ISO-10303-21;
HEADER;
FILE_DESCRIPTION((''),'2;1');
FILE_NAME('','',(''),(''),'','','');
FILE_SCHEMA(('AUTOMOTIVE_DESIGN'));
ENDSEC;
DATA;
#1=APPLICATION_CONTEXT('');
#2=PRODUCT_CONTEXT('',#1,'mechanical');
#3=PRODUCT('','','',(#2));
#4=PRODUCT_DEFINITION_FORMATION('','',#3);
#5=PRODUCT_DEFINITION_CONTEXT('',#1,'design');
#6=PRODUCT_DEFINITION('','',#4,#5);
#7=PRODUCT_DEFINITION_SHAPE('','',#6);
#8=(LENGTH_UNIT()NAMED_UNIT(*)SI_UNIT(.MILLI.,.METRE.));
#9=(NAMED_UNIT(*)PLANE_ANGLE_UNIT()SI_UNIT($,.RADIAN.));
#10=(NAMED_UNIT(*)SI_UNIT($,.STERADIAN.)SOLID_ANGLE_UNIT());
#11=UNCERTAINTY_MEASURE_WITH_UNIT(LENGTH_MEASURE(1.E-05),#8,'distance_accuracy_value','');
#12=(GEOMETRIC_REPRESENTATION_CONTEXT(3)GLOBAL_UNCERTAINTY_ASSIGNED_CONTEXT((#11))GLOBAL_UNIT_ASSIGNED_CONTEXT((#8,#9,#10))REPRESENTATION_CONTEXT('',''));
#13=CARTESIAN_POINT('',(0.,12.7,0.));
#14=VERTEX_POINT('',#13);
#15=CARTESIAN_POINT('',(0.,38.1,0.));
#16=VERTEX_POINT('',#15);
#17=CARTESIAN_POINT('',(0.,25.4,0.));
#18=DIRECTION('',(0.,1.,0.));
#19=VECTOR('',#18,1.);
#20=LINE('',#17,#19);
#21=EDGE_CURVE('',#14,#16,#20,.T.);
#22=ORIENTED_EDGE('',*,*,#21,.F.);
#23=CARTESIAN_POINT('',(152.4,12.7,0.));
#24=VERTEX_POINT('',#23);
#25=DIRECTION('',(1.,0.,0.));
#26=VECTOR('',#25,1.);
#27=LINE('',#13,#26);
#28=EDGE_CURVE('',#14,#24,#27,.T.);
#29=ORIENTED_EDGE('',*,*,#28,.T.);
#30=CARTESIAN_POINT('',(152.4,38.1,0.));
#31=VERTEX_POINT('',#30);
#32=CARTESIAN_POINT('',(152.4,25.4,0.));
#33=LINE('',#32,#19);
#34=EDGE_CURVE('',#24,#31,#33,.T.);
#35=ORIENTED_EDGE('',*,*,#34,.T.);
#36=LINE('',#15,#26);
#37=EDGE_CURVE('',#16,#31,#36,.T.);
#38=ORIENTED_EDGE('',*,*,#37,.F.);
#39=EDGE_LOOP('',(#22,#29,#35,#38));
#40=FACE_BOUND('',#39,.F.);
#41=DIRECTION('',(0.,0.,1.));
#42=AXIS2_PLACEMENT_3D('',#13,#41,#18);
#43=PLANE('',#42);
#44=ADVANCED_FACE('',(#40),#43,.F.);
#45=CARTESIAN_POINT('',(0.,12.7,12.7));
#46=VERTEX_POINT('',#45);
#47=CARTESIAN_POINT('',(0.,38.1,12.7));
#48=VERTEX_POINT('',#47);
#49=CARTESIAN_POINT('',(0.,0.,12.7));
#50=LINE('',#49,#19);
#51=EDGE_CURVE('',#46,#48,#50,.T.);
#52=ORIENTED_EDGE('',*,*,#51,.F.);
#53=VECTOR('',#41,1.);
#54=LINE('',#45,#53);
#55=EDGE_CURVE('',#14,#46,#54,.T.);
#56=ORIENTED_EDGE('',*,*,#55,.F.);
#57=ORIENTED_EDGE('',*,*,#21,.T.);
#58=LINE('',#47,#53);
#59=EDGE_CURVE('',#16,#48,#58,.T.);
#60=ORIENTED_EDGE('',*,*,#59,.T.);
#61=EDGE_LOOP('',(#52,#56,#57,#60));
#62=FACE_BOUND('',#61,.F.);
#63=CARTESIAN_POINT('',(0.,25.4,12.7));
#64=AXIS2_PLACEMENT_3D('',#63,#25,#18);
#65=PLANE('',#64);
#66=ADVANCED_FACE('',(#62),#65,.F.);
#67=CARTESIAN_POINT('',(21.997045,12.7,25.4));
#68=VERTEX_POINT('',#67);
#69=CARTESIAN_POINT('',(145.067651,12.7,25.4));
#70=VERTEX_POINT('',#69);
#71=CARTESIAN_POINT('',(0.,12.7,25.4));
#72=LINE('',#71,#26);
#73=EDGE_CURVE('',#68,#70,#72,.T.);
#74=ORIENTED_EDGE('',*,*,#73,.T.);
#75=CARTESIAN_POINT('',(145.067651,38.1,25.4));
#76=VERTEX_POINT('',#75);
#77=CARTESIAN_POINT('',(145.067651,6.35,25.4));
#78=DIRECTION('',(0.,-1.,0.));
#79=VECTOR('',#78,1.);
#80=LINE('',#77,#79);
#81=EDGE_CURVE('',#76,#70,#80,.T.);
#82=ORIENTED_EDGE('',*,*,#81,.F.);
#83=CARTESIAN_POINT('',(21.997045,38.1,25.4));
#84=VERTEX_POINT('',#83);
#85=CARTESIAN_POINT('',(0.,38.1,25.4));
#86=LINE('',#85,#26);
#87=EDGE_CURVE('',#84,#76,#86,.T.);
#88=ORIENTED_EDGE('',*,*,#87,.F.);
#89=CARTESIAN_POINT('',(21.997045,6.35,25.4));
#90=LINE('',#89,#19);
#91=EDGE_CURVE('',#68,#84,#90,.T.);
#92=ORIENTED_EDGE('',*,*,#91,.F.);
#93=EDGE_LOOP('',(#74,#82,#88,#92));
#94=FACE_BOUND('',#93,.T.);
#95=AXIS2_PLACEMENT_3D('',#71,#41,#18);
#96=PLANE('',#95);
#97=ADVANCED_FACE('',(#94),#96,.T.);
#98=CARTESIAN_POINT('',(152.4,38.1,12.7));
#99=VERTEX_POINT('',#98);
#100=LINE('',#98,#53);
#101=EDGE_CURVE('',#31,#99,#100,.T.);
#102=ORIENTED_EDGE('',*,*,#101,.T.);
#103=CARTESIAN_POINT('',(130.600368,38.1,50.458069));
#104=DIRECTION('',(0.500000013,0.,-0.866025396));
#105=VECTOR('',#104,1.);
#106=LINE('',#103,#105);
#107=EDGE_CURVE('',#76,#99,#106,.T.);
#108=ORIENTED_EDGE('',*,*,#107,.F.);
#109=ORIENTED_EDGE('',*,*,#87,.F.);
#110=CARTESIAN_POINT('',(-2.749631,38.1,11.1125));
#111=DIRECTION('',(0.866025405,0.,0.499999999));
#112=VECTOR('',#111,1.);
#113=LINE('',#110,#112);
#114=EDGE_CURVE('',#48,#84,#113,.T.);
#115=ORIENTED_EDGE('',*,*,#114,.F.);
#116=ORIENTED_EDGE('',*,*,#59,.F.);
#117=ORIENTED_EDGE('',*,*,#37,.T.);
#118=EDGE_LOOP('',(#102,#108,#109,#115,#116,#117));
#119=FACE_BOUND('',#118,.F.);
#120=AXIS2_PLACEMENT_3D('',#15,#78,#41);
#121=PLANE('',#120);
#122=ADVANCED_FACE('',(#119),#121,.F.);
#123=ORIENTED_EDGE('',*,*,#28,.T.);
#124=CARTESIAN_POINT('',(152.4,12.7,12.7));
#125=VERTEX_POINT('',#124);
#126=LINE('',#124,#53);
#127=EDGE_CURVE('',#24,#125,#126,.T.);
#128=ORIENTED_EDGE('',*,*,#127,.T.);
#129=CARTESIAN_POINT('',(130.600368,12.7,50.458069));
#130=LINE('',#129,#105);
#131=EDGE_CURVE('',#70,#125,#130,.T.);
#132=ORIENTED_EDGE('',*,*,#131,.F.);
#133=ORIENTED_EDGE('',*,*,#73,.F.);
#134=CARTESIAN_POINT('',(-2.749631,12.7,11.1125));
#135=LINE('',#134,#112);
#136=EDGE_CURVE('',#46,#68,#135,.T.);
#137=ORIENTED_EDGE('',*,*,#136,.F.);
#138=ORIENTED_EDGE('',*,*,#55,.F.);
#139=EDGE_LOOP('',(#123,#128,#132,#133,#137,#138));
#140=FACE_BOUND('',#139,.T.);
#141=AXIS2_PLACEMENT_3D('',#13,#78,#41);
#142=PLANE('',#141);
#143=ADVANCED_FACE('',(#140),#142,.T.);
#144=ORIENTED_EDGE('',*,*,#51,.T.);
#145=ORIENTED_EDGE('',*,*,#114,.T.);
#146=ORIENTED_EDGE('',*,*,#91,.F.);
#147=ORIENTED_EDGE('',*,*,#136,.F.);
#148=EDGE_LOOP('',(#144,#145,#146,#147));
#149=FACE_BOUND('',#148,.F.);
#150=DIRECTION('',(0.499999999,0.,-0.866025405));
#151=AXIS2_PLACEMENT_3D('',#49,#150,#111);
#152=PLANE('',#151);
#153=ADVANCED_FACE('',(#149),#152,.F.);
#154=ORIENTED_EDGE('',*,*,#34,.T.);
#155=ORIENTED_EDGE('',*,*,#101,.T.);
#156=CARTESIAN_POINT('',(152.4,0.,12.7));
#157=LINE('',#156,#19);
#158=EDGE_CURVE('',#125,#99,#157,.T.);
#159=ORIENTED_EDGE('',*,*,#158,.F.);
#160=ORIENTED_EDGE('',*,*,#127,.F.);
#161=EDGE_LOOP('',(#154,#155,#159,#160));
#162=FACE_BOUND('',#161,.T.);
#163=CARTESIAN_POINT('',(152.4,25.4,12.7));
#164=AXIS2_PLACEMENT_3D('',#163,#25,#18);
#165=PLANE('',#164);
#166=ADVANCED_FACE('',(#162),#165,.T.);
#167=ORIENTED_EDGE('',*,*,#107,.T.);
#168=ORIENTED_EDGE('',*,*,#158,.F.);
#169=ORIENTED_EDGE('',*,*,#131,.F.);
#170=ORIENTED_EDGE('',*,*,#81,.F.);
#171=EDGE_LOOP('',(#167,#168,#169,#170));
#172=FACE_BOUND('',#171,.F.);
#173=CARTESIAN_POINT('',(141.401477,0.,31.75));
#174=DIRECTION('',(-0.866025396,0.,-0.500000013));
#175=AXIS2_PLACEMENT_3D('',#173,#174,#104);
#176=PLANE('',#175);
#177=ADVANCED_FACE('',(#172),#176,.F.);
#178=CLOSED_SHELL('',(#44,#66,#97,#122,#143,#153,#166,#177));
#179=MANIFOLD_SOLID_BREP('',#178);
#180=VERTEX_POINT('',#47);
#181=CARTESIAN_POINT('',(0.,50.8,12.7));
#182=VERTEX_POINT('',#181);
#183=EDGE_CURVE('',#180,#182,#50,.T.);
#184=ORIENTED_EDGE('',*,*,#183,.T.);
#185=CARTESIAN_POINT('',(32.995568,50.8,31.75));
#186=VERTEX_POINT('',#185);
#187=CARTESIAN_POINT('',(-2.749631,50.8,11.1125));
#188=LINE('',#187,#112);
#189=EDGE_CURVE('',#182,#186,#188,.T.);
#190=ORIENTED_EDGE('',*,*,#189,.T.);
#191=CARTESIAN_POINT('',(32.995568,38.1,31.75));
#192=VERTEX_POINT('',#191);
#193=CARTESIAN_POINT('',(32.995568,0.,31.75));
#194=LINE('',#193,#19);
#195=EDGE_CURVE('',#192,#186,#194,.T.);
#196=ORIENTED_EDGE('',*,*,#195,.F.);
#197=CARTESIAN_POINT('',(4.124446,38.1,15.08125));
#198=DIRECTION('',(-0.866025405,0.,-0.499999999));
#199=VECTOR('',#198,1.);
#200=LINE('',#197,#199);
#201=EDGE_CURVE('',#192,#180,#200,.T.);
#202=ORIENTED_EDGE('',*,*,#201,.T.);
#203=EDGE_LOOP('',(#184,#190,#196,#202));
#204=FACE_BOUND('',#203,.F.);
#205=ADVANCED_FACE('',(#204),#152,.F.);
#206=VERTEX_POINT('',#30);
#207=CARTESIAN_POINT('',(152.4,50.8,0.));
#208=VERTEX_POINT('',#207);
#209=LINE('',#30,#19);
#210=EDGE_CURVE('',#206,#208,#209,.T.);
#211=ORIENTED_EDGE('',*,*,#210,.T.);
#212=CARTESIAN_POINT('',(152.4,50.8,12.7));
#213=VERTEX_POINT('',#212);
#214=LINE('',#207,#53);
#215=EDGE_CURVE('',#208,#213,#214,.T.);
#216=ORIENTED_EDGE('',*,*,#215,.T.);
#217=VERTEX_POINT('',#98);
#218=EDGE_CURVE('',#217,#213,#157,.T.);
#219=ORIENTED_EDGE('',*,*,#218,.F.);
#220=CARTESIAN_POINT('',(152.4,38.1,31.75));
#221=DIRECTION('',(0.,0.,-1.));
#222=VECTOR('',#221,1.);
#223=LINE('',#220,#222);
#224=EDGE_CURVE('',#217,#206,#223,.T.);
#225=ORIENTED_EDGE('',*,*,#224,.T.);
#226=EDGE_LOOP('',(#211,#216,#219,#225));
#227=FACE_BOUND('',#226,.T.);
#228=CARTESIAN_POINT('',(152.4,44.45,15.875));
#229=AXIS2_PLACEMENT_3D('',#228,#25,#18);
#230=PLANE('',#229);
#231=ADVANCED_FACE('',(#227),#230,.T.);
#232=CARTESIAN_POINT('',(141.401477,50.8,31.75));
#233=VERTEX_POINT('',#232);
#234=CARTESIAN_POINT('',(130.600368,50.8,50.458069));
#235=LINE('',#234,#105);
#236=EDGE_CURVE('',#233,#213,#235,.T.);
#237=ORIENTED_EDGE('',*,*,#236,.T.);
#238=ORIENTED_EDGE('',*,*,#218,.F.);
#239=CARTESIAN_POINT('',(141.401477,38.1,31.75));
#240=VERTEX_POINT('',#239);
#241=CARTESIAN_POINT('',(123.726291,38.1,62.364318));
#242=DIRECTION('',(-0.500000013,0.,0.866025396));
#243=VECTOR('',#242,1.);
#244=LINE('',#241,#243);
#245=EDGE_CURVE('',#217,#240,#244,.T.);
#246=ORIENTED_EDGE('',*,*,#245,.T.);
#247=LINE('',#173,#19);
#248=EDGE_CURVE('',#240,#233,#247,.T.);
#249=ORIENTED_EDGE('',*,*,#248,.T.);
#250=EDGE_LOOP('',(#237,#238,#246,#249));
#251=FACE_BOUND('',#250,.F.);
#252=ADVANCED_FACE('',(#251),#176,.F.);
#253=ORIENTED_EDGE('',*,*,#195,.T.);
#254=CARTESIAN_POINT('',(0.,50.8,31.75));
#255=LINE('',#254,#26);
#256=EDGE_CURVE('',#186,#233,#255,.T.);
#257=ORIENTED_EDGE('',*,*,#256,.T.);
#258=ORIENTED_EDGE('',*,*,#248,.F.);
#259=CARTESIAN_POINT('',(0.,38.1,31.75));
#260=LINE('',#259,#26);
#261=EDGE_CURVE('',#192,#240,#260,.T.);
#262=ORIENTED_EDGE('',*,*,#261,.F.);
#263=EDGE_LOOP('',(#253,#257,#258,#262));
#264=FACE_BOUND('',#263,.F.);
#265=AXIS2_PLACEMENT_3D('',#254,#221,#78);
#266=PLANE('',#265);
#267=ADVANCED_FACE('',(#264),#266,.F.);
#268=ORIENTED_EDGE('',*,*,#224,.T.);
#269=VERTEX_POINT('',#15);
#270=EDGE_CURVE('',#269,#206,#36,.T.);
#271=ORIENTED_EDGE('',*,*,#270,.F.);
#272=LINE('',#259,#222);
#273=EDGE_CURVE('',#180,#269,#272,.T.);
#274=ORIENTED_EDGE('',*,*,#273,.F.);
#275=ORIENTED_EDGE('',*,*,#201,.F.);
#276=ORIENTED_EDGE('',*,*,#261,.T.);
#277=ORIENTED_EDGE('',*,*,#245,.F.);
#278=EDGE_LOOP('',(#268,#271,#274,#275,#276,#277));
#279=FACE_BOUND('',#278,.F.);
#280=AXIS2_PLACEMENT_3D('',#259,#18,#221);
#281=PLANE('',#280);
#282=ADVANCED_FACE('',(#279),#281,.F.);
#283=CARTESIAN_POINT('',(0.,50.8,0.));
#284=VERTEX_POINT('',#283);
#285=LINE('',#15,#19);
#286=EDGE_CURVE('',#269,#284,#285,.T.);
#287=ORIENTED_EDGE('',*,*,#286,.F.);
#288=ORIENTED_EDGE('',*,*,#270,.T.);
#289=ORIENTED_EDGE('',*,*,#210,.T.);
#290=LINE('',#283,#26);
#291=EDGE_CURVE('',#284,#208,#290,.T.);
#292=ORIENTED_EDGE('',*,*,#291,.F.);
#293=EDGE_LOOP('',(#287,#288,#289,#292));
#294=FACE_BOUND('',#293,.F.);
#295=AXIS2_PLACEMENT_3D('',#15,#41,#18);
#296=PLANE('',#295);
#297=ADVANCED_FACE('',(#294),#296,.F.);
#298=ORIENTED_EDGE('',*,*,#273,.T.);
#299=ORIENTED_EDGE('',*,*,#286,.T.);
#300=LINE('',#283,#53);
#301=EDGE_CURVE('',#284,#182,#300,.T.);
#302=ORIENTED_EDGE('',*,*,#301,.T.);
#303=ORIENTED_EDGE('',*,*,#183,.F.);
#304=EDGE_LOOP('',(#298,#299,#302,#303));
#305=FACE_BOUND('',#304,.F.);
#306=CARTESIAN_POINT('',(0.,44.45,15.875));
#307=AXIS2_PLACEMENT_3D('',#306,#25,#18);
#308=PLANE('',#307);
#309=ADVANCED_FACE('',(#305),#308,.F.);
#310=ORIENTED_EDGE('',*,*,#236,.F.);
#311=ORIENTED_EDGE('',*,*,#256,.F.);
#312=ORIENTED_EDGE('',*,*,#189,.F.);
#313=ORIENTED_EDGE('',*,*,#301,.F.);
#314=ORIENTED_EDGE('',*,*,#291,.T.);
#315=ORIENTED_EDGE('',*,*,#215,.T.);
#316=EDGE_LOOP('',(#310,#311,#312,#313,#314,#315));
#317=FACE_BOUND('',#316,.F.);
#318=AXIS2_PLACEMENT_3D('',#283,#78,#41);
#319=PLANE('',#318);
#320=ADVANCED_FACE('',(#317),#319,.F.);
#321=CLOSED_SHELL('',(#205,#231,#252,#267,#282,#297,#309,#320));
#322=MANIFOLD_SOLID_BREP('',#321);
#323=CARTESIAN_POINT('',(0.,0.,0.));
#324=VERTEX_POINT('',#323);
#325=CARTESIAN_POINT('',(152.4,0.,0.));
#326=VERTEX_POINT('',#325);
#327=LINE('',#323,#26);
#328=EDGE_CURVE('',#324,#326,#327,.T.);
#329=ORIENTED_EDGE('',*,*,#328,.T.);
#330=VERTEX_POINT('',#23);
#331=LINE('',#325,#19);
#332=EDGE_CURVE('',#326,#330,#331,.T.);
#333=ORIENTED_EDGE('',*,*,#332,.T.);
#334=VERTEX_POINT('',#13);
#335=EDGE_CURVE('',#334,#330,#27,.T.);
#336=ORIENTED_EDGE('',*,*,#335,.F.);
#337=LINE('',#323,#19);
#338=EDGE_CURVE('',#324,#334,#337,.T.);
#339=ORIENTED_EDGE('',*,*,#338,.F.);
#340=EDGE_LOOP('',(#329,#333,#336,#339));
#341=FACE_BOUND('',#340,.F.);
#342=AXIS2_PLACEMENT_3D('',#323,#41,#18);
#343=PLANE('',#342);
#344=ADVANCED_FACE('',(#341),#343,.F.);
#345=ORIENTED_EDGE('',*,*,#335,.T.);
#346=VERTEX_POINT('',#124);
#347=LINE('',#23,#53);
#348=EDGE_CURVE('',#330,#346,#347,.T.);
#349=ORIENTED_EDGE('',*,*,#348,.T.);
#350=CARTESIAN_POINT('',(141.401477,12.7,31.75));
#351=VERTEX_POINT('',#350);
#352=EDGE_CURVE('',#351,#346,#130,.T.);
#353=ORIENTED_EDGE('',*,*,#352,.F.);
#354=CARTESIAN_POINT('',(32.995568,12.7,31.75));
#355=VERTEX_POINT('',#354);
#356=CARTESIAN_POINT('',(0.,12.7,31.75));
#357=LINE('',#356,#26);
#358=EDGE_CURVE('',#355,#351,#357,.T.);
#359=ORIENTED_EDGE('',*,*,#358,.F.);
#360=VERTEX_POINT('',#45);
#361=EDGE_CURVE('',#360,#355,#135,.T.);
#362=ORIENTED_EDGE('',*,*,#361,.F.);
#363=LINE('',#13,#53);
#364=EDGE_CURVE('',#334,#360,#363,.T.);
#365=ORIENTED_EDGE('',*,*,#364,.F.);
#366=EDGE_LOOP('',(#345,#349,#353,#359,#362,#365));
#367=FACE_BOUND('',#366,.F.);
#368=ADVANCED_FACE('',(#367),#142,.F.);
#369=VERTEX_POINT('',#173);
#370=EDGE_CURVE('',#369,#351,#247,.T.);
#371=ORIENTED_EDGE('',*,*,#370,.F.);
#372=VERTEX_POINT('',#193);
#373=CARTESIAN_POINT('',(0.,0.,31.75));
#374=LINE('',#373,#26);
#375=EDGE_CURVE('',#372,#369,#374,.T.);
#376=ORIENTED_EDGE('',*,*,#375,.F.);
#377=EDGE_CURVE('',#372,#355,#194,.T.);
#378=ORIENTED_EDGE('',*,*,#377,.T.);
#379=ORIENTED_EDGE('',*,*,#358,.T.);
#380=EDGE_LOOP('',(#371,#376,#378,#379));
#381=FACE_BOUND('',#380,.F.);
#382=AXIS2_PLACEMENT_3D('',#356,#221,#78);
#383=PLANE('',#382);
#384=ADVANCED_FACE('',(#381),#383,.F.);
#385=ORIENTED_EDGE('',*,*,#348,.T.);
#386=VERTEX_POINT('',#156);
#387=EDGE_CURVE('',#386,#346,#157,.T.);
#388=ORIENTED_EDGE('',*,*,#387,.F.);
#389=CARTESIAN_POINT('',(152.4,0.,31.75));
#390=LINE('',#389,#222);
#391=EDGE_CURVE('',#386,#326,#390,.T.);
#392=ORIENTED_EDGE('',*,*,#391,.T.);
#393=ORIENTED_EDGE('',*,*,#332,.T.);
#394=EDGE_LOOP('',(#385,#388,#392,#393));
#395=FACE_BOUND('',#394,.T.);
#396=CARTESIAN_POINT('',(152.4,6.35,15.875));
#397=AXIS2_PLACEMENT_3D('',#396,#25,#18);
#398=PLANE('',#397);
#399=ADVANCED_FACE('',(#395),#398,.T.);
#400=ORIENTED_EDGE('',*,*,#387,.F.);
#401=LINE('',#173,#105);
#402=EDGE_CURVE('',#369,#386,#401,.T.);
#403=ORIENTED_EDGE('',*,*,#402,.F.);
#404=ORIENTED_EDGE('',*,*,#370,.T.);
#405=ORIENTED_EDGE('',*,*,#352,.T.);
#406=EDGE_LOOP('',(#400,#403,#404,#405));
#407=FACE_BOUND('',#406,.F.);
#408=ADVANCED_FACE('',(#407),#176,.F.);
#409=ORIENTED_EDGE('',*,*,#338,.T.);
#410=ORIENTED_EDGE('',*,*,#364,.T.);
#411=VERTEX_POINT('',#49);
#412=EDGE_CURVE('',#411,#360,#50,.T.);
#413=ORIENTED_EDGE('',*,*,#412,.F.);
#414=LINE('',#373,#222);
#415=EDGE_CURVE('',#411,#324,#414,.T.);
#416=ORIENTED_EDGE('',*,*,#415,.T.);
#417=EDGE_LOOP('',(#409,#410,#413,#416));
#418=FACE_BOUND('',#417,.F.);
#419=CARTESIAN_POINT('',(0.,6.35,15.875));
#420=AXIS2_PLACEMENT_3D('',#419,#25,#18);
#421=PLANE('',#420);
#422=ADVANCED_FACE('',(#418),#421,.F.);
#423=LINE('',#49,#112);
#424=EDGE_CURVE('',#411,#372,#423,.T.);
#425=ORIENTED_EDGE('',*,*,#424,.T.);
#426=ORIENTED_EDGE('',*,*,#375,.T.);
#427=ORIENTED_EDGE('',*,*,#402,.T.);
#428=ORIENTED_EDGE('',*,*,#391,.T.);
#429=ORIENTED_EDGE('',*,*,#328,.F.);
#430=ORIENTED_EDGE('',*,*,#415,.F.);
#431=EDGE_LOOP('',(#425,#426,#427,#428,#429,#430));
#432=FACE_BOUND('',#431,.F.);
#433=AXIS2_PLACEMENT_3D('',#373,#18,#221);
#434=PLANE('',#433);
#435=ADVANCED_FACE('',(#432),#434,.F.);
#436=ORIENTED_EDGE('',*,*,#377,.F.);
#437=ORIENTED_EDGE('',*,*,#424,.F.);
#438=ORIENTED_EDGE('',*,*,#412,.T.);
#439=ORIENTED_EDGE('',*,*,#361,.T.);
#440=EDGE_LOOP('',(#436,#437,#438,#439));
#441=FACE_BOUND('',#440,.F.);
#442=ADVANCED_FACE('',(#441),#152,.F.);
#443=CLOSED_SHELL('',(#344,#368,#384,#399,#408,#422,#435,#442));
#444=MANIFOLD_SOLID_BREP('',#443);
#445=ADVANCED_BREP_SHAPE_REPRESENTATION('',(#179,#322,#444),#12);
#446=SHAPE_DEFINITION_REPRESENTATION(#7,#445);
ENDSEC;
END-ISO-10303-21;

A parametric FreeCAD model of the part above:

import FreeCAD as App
import Part
import Sketcher
Q = App.Units.Quantity

doc = App.newDocument("Part")
body = doc.addObject("PartDesign::Body", "Body")
body.AllowCompound = True

sketch1 = body.newObject("Sketcher::SketchObject", "Sketch")
sketch1.AttachmentSupport = (doc.getObject("YZ_Plane"), [""])
sketch1.MapMode = "FlatFace"
sketch1.addGeometry([
    Part.LineSegment(App.Vector(0, 31.75, 0), App.Vector(0, 0, 0)),
    Part.LineSegment(App.Vector(0, 0, 0), App.Vector(12.7, 0, 0)),
    Part.LineSegment(App.Vector(12.7, 0, 0), App.Vector(12.7, 31.75, 0)),
    Part.LineSegment(App.Vector(12.7, 31.75, 0), App.Vector(0, 31.75, 0)),
    Part.LineSegment(App.Vector(38.1, 0, 0), App.Vector(50.8, 0, 0)),
    Part.LineSegment(App.Vector(50.8, 0, 0), App.Vector(50.8, 31.75, 0)),
    Part.LineSegment(App.Vector(50.8, 31.75, 0), App.Vector(38.1, 31.75, 0)),
    Part.LineSegment(App.Vector(38.1, 31.75, 0), App.Vector(38.1, 0, 0)),
], False)
sketch1.addConstraint([
    Sketcher.Constraint("Coincident", 0, 2, 1, 1),
    Sketcher.Constraint("Coincident", 1, 2, 2, 1),
    Sketcher.Constraint("Coincident", 2, 2, 3, 1),
    Sketcher.Constraint("Coincident", 3, 2, 0, 1),
    Sketcher.Constraint("Coincident", 4, 2, 5, 1),
    Sketcher.Constraint("Coincident", 5, 2, 6, 1),
    Sketcher.Constraint("Coincident", 6, 2, 7, 1),
    Sketcher.Constraint("Coincident", 7, 2, 4, 1),
    Sketcher.Constraint("Vertical", 0),
    Sketcher.Constraint("Horizontal", 1),
    Sketcher.Constraint("Vertical", 2),
    Sketcher.Constraint("Horizontal", 3),
    Sketcher.Constraint("Horizontal", 4),
    Sketcher.Constraint("Vertical", 5),
    Sketcher.Constraint("Horizontal", 6),
    Sketcher.Constraint("Vertical", 7),
    Sketcher.Constraint("Coincident", 0, 2, -1, 1),
    Sketcher.Constraint("PointOnObject", 4, 2, -1),
    Sketcher.Constraint("Horizontal", 3, 2, 5, 2),
    Sketcher.Constraint("Equal", 3, 4),
    Sketcher.Constraint("DistanceX", 1, 1, 1, 2, Q("0.5 in")),
    Sketcher.Constraint("DistanceX", -1, 1, 4, 2, Q("2 in")),
    Sketcher.Constraint("DistanceY", 0, 2, 0, 1, Q("1.25 in")),
])
pad1 = body.newObject("PartDesign::Pad", "Pad")
pad1.Profile = sketch1
pad1.Length = Q("6 in")
body2 = doc.addObject("PartDesign::Body", "Body001")

sketch2 = body2.newObject("Sketcher::SketchObject", "Sketch001")
sketch2.AttachmentSupport = (doc.getObject("YZ_Plane001"), [""])
sketch2.MapMode = "FlatFace"
sketch2.addGeometry([
    Part.LineSegment(App.Vector(12.7, 25.4, 0), App.Vector(12.7, 0, 0)),
    Part.LineSegment(App.Vector(12.7, 0, 0), App.Vector(38.1, 0, 0)),
    Part.LineSegment(App.Vector(38.1, 0, 0), App.Vector(38.1, 25.4, 0)),
    Part.LineSegment(App.Vector(38.1, 25.4, 0), App.Vector(12.7, 25.4, 0)),
], False)
sketch2.addConstraint([
    Sketcher.Constraint("Coincident", 0, 2, 1, 1),
    Sketcher.Constraint("Coincident", 1, 2, 2, 1),
    Sketcher.Constraint("Coincident", 2, 2, 3, 1),
    Sketcher.Constraint("Coincident", 3, 2, 0, 1),
    Sketcher.Constraint("Vertical", 0),
    Sketcher.Constraint("Horizontal", 1),
    Sketcher.Constraint("Vertical", 2),
    Sketcher.Constraint("Horizontal", 3),
    Sketcher.Constraint("PointOnObject", 0, 2, -1),
    Sketcher.Constraint("Equal", 3, 0),
    Sketcher.Constraint("DistanceX", 1, 1, 1, 2, Q("1 in")),
    Sketcher.Constraint("DistanceX", -1, 1, 0, 2, Q("0.5 in")),
])
pad2 = body2.newObject("PartDesign::Pad", "Pad001")
pad2.Profile = sketch2
pad2.Length = Q("6 in")
body3 = doc.addObject("PartDesign::Body", "Body002")
body3.AllowCompound = True

sketch3 = body3.newObject("Sketcher::SketchObject", "Sketch002")
sketch3.AttachmentSupport = (doc.getObject("XZ_Plane002"), [""])
sketch3.MapMode = "FlatFace"
sketch3.addGeometry([
    Part.LineSegment(App.Vector(141.401477, 31.75, 0), App.Vector(152.4, 12.7, 0)),
    Part.LineSegment(App.Vector(152.4, 12.7, 0), App.Vector(152.4, 31.75, 0)),
    Part.LineSegment(App.Vector(152.4, 31.75, 0), App.Vector(141.401477, 31.75, 0)),
    Part.LineSegment(App.Vector(0, 31.75, 0), App.Vector(0, 12.7, 0)),
    Part.LineSegment(App.Vector(0, 12.7, 0), App.Vector(32.995568, 31.75, 0)),
    Part.LineSegment(App.Vector(32.995568, 31.75, 0), App.Vector(0, 31.75, 0)),
], False)
sketch3.addConstraint([
    Sketcher.Constraint("Coincident", 0, 2, 1, 1),
    Sketcher.Constraint("Coincident", 1, 2, 2, 1),
    Sketcher.Constraint("Coincident", 2, 2, 0, 1),
    Sketcher.Constraint("Coincident", 3, 2, 4, 1),
    Sketcher.Constraint("Coincident", 4, 2, 5, 1),
    Sketcher.Constraint("Coincident", 5, 2, 3, 1),
    Sketcher.Constraint("Vertical", 1),
    Sketcher.Constraint("Horizontal", 2),
    Sketcher.Constraint("Vertical", 3),
    Sketcher.Constraint("Horizontal", 5),
    Sketcher.Constraint("PointOnObject", 3, 2, -2),
    Sketcher.Constraint("Perpendicular", 0, 4),
    Sketcher.Constraint("Horizontal", 0, 2, 3, 2),
    Sketcher.Constraint("Horizontal", 2, 2, 4, 2),
    Sketcher.Constraint("DistanceX", -1, 1, 0, 2, Q("6 in")),
    Sketcher.Constraint("Angle", 0, Q("-59.999999 deg")),
    Sketcher.Constraint("Distance", 4, Q("1.5 in")),
    Sketcher.Constraint("DistanceY", -1, 1, 0, 2, Q("0.5 in")),
])
pad3 = body3.newObject("PartDesign::Pad", "Pad002")
pad3.Profile = sketch3
pad3.Length = 50.801
pad3.Reversed = True
body.AllowCompound = True
doc.recompute()

body4 = doc.addObject("PartDesign::Body", "Body003")
body4.BaseFeature = body3
boolean = body.newObject("PartDesign::Boolean", "Boolean")
boolean.Type = "Cut"
boolean.addObjects([body4])
doc.recompute()

boolean2 = body2.newObject("PartDesign::Boolean", "Boolean001")
boolean2.Type = "Cut"
boolean2.addObjects([body3])

doc.recompute()
